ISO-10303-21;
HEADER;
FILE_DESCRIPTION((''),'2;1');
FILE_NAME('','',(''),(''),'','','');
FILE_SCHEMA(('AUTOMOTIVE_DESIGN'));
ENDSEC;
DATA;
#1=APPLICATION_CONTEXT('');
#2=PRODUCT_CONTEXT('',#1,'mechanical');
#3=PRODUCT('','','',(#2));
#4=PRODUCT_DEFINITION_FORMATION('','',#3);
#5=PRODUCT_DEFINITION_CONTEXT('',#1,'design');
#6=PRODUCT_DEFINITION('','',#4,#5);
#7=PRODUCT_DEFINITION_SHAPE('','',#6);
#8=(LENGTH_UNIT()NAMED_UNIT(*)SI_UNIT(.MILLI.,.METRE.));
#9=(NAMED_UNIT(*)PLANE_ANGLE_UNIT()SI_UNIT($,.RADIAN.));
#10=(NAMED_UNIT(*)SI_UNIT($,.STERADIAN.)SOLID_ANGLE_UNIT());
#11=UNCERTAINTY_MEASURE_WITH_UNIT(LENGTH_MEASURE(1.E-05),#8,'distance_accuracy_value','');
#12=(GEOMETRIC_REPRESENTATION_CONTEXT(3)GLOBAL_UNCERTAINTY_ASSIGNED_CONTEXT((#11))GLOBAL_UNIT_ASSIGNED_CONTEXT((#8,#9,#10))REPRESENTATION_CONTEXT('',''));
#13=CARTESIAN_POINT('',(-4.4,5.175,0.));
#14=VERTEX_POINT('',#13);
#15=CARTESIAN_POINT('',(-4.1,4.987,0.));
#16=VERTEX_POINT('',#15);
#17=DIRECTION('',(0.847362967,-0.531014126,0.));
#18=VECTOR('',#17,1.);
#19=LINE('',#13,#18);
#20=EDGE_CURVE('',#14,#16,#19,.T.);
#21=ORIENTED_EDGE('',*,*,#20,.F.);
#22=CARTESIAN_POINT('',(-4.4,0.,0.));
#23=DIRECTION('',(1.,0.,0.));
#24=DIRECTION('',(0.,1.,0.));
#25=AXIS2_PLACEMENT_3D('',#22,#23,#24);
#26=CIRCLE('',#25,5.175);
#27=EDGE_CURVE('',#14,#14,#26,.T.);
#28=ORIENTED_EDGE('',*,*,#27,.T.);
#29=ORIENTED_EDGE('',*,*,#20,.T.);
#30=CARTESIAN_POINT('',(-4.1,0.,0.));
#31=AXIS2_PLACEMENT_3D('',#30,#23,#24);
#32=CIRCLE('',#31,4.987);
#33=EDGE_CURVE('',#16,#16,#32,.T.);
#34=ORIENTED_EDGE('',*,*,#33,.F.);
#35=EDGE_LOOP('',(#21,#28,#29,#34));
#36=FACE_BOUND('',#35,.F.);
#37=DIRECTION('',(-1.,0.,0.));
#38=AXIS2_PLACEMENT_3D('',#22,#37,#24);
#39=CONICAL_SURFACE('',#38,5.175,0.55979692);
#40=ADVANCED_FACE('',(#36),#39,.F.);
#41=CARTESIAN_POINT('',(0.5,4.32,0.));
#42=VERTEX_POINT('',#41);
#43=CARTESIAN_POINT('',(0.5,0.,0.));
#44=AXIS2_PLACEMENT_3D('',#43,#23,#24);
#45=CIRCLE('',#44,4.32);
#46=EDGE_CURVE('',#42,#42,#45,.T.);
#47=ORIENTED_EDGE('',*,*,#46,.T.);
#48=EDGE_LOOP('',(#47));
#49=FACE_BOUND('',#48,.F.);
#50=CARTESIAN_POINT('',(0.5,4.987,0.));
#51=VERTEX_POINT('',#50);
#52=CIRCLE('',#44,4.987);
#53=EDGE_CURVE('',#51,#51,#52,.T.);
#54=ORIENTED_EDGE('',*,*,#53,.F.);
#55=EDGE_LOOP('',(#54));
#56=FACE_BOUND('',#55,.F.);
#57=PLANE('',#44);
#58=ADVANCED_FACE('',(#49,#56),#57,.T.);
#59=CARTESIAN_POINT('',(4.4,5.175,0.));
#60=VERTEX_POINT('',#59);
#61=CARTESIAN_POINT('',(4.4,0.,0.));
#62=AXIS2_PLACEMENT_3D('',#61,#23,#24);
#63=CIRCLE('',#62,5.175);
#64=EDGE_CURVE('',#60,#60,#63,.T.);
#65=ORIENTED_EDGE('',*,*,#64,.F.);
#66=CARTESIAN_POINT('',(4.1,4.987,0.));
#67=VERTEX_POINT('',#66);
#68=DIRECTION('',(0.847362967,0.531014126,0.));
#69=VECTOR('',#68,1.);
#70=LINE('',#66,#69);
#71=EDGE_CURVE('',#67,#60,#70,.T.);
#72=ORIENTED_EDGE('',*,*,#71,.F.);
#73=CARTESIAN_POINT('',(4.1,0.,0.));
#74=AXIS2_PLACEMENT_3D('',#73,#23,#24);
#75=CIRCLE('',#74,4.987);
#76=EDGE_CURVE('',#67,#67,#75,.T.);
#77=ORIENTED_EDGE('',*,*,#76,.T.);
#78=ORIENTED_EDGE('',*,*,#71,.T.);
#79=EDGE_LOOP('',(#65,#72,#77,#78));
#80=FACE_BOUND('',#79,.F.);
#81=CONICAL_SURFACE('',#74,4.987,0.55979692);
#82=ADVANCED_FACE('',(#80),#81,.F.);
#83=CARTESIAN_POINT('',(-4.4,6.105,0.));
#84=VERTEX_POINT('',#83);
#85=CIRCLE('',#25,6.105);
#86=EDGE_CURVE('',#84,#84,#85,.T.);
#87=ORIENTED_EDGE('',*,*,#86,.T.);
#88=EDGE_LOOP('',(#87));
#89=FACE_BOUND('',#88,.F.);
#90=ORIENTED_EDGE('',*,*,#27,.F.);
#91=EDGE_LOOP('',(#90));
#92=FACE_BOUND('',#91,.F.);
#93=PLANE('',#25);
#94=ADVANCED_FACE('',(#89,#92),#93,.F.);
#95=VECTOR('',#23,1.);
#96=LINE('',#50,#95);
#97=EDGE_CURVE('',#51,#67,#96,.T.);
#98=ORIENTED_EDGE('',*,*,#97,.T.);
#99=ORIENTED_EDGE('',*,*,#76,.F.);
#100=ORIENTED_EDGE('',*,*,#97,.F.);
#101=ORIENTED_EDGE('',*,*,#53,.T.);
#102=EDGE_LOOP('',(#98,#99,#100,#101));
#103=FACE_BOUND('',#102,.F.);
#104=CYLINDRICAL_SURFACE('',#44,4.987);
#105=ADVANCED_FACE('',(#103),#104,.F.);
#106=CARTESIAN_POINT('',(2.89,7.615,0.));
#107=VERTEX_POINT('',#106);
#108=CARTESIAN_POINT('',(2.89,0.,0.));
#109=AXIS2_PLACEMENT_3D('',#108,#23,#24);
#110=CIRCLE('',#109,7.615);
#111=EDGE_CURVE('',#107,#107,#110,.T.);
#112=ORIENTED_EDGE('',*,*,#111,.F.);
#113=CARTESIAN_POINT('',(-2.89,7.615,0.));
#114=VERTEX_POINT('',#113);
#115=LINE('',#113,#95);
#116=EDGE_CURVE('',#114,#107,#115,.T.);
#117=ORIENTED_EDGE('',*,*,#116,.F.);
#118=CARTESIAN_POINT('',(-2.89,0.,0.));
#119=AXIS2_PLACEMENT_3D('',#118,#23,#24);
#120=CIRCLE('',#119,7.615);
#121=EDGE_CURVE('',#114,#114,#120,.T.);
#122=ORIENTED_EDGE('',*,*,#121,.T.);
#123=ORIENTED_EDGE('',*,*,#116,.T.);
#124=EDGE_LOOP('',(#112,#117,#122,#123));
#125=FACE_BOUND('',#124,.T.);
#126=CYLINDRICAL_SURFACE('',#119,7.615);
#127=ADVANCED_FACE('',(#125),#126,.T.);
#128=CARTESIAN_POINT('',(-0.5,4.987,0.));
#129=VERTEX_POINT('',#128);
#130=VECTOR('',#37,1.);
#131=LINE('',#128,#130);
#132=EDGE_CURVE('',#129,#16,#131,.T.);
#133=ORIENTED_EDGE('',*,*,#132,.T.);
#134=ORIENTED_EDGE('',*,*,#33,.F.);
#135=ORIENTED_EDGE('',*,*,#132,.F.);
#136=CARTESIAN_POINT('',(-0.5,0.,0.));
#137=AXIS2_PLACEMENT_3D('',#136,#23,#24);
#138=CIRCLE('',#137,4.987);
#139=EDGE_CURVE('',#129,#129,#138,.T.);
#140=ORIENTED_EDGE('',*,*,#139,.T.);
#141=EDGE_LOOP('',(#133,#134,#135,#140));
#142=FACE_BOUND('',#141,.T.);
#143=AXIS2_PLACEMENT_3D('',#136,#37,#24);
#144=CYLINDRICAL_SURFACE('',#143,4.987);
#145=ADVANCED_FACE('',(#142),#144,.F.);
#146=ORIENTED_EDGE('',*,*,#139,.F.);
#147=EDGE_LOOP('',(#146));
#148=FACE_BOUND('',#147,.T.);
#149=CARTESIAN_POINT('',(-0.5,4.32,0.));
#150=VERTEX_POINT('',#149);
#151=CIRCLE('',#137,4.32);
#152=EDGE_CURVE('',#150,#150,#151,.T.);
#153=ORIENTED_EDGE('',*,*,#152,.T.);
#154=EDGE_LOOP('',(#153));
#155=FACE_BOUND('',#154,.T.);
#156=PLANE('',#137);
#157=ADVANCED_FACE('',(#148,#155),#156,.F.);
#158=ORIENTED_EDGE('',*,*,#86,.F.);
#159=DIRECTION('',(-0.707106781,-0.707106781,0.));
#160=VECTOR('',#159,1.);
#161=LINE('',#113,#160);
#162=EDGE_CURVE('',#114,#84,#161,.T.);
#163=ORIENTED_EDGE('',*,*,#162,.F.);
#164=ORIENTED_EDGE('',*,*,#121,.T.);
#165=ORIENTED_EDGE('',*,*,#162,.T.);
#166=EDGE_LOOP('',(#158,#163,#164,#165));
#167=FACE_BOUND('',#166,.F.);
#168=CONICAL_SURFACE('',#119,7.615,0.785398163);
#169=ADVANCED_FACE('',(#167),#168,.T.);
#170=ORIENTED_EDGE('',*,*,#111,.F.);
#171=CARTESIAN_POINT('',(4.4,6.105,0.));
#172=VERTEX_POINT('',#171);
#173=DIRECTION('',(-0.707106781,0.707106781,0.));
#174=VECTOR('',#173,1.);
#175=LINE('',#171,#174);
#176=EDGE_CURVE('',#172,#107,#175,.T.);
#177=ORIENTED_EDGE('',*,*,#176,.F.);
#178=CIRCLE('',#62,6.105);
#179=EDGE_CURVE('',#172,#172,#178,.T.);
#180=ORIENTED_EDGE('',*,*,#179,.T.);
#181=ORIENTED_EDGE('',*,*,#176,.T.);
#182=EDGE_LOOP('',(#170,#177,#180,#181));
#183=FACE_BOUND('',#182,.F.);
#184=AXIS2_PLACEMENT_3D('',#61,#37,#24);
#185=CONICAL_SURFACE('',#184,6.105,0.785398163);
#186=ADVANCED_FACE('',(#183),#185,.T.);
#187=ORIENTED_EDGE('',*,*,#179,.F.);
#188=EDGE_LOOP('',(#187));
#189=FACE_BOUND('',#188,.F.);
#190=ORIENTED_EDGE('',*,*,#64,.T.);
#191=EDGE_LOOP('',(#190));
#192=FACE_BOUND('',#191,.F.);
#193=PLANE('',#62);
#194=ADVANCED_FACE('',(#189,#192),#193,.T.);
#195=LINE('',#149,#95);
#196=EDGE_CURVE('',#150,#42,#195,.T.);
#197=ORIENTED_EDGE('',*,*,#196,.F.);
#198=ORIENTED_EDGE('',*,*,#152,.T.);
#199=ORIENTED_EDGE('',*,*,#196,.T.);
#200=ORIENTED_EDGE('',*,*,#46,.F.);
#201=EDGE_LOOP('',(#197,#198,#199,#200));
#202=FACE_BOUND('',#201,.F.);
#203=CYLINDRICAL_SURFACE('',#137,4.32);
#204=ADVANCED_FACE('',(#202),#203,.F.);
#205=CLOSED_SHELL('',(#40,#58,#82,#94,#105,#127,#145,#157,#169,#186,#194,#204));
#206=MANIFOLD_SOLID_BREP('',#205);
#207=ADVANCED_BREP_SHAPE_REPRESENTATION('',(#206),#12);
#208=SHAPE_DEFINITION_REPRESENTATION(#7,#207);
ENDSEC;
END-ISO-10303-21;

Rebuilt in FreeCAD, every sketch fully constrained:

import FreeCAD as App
import Part
import Sketcher
Q = App.Units.Quantity

doc = App.newDocument("Part")
params = doc.addObject("Spreadsheet::Sheet", "Params")
for row, (alias, value) in enumerate([
    ("sketch1_width", "1 mm"),
    ("sketch1_width2", "5.78 mm"),
    ("sketch1_width3", "3.6 mm"),
    ("revolution_angle", "360 deg"),
], start=1):
    params.set(f"A{row}", alias)
    params.set(f"B{row}", "=" + value)
    params.setAlias(f"B{row}", alias)

body = doc.addObject("PartDesign::Body", "Body")

sketch1 = body.newObject("Sketcher::SketchObject", "Sketch")
sketch1.AttachmentSupport = (doc.getObject("XY_Plane"), [""])
sketch1.MapMode = "FlatFace"
sketch1.addGeometry(Part.LineSegment(App.Vector(2.89, 7.62, 0), App.Vector(-2.89, 7.62, 0)), False)
sketch1.addGeometry(Part.LineSegment(App.Vector(-2.89, 7.62, 0), App.Vector(-4.4, 6.11, 0)), False)
sketch1.addGeometry(Part.LineSegment(App.Vector(-4.4, 6.11, 0), App.Vector(-4.4, 5.17, 0)), False)
sketch1.addGeometry(Part.LineSegment(App.Vector(-4.4, 5.17, 0), App.Vector(-4.1, 4.99, 0)), False)
sketch1.addGeometry(Part.LineSegment(App.Vector(-4.1, 4.99, 0), App.Vector(-0.5, 4.99, 0)), False)
sketch1.addGeometry(Part.LineSegment(App.Vector(-0.5, 4.99, 0), App.Vector(-0.5, 4.32, 0)), False)
sketch1.addGeometry(Part.LineSegment(App.Vector(-0.5, 4.32, 0), App.Vector(0.5, 4.32, 0)), False)
sketch1.addGeometry(Part.LineSegment(App.Vector(0.5, 4.32, 0), App.Vector(0.5, 4.99, 0)), False)
sketch1.addGeometry(Part.LineSegment(App.Vector(0.5, 4.99, 0), App.Vector(4.1, 4.99, 0)), False)
sketch1.addGeometry(Part.LineSegment(App.Vector(4.1, 4.99, 0), App.Vector(4.4, 5.17, 0)), False)
sketch1.addGeometry(Part.LineSegment(App.Vector(4.4, 5.17, 0), App.Vector(4.4, 6.11, 0)), False)
sketch1.addGeometry(Part.LineSegment(App.Vector(4.4, 6.11, 0), App.Vector(2.89, 7.62, 0)), False)
sketch1.addConstraint(Sketcher.Constraint("Coincident", 0, 2, 1, 1))
sketch1.addConstraint(Sketcher.Constraint("Coincident", 1, 2, 2, 1))
sketch1.addConstraint(Sketcher.Constraint("Coincident", 2, 2, 3, 1))
sketch1.addConstraint(Sketcher.Constraint("Coincident", 3, 2, 4, 1))
sketch1.addConstraint(Sketcher.Constraint("Coincident", 4, 2, 5, 1))
sketch1.addConstraint(Sketcher.Constraint("Coincident", 5, 2, 6, 1))
sketch1.addConstraint(Sketcher.Constraint("Coincident", 6, 2, 7, 1))
sketch1.addConstraint(Sketcher.Constraint("Coincident", 7, 2, 8, 1))
sketch1.addConstraint(Sketcher.Constraint("Coincident", 8, 2, 9, 1))
sketch1.addConstraint(Sketcher.Constraint("Coincident", 9, 2, 10, 1))
sketch1.addConstraint(Sketcher.Constraint("Coincident", 10, 2, 11, 1))
sketch1.addConstraint(Sketcher.Constraint("Coincident", 11, 2, 0, 1))
sketch1.addConstraint(Sketcher.Constraint("Horizontal", 0))
sketch1.addConstraint(Sketcher.Constraint("Vertical", 2))
sketch1.addConstraint(Sketcher.Constraint("Horizontal", 4))
sketch1.addConstraint(Sketcher.Constraint("Vertical", 5))
sketch1.addConstraint(Sketcher.Constraint("Horizontal", 6))
sketch1.addConstraint(Sketcher.Constraint("Vertical", 7))
sketch1.addConstraint(Sketcher.Constraint("Horizontal", 8))
sketch1.addConstraint(Sketcher.Constraint("Vertical", 10))
sketch1.addConstraint(Sketcher.Constraint("Symmetric", 4, 2, 7, 2, -2))
sketch1.addConstraint(Sketcher.Constraint("Symmetric", 2, 2, 9, 2, -2))
sketch1.addConstraint(Sketcher.Constraint("Perpendicular", 1, 11))
sketch1.addConstraint(Sketcher.Constraint("Horizontal", 1, 2, 10, 2))
sketch1.addConstraint(Sketcher.Constraint("Equal", 4, 8))
sketch1.addConstraint(Sketcher.Constraint("Equal", 1, 11))
sketch1.addConstraint(Sketcher.Constraint("DistanceX", 6, 1, 6, 2, Q("1 mm")))
sketch1.addConstraint(Sketcher.Constraint("DistanceX", 0, 2, 0, 1, Q("5.78 mm")))
sketch1.addConstraint(Sketcher.Constraint("DistanceX", 2, 2, 3, 2, Q("0.3 mm")))
sketch1.addConstraint(Sketcher.Constraint("DistanceY", -1, 1, 5, 2, Q("4.32 mm")))
sketch1.addConstraint(Sketcher.Constraint("DistanceX", 4, 1, 4, 2, Q("3.6 mm")))
sketch1.addConstraint(Sketcher.Constraint("DistanceY", -1, 1, 0, 2, Q("7.615 mm")))
sketch1.addConstraint(Sketcher.Constraint("DistanceY", -1, 1, 2, 2, Q("5.175 mm")))
sketch1.addConstraint(Sketcher.Constraint("DistanceY", -1, 1, 3, 2, Q("4.987 mm")))
sketch1.setExpression("Constraints[26]", "Params.sketch1_width")
sketch1.setExpression("Constraints[27]", "Params.sketch1_width2")
sketch1.setExpression("Constraints[30]", "Params.sketch1_width3")
revolution = body.newObject("PartDesign::Revolution", "Revolution")
revolution.Profile = sketch1
revolution.ReferenceAxis = (sketch1, ["H_Axis"])
revolution.setExpression("Angle", "Params.revolution_angle")

doc.recompute()
